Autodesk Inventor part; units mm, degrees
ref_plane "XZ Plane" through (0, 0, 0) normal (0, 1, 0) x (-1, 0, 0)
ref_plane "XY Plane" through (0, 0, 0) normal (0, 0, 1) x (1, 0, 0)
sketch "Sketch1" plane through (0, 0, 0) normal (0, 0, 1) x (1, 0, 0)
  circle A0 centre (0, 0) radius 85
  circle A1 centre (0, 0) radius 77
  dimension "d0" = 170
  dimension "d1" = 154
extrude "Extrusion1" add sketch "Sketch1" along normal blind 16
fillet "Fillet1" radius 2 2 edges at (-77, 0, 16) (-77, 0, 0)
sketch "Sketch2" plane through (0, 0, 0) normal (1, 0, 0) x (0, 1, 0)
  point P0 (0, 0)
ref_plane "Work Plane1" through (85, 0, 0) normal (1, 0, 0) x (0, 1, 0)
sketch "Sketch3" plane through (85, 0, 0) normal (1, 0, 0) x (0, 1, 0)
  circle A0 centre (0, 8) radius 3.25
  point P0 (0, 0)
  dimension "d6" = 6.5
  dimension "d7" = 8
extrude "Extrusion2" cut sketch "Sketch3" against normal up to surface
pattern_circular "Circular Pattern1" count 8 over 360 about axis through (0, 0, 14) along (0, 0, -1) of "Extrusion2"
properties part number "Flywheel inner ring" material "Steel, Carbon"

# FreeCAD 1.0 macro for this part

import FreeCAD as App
import Part
import Sketcher
from FreeCAD import Vector
Q = App.Units.Quantity


def edges_at(feature, points):
    """Names of the edges that pass closest to the given points."""
    edges = feature.Shape.Edges
    near = lambda p: min(range(len(edges)), key=lambda i: edges[i].distToShape(Part.Vertex(*p))[0])
    return sorted({f"Edge{near(p) + 1}" for p in points})

doc = App.newDocument("Part")
body = doc.addObject("PartDesign::Body", "Body")

sketch1 = body.newObject("Sketcher::SketchObject", "Sketch")
sketch1.AttachmentSupport = (doc.getObject("XY_Plane"), [""])
sketch1.MapMode = "FlatFace"
sketch1.addGeometry([
    Part.Circle(Vector(0, 0, 0), Vector(0, 0, 1), 85),
    Part.Circle(Vector(0, 0, 0), Vector(0, 0, 1), 77),
], False)
sketch1.addConstraint([
    Sketcher.Constraint("Coincident", 0, 3, -1, 1),
    Sketcher.Constraint("Coincident", 1, 3, -1, 1),
    Sketcher.Constraint("Diameter", 0, Q("170 mm")),
    Sketcher.Constraint("Diameter", 1, Q("154 mm")),
])
pad1 = body.newObject("PartDesign::Pad", "Pad")
pad1.Profile = sketch1
pad1.Length = 16
doc.recompute()

fillet = body.newObject("PartDesign::Fillet", "Fillet")
fillet.Base = (pad1, edges_at(pad1, [(-77, 0, 16), (-77, 0, 0)]))
fillet.Radius = 2

sketch2 = body.newObject("Sketcher::SketchObject", "Sketch001")
sketch2.AttachmentSupport = (doc.getObject("YZ_Plane"), [""])
sketch2.MapMode = "FlatFace"
sketch2.AttachmentOffset = App.Placement(Vector(0, 0, 85), App.Rotation())
sketch2.addGeometry(Part.Circle(Vector(0, 8, 0), Vector(0, 0, 1), 3.25), False)
sketch2.addConstraint([
    Sketcher.Constraint("PointOnObject", 0, 3, -2),
    Sketcher.Constraint("Diameter", 0, Q("6.5 mm")),
    Sketcher.Constraint("DistanceY", -1, 1, 0, 3, Q("8 mm")),
])
pocket1 = body.newObject("PartDesign::Pocket", "Pocket")
pocket1.Profile = sketch2
pocket1.Length = 8.0686
doc.recompute()

polarpattern = body.newObject("PartDesign::PolarPattern", "PolarPattern")
polarpattern.Originals = [pocket1]
polarpattern.Axis = (doc.getObject("Z_Axis"), [""])
polarpattern.Angle = 360
polarpattern.Occurrences = 8
body.Tip = polarpattern

doc.recompute()
